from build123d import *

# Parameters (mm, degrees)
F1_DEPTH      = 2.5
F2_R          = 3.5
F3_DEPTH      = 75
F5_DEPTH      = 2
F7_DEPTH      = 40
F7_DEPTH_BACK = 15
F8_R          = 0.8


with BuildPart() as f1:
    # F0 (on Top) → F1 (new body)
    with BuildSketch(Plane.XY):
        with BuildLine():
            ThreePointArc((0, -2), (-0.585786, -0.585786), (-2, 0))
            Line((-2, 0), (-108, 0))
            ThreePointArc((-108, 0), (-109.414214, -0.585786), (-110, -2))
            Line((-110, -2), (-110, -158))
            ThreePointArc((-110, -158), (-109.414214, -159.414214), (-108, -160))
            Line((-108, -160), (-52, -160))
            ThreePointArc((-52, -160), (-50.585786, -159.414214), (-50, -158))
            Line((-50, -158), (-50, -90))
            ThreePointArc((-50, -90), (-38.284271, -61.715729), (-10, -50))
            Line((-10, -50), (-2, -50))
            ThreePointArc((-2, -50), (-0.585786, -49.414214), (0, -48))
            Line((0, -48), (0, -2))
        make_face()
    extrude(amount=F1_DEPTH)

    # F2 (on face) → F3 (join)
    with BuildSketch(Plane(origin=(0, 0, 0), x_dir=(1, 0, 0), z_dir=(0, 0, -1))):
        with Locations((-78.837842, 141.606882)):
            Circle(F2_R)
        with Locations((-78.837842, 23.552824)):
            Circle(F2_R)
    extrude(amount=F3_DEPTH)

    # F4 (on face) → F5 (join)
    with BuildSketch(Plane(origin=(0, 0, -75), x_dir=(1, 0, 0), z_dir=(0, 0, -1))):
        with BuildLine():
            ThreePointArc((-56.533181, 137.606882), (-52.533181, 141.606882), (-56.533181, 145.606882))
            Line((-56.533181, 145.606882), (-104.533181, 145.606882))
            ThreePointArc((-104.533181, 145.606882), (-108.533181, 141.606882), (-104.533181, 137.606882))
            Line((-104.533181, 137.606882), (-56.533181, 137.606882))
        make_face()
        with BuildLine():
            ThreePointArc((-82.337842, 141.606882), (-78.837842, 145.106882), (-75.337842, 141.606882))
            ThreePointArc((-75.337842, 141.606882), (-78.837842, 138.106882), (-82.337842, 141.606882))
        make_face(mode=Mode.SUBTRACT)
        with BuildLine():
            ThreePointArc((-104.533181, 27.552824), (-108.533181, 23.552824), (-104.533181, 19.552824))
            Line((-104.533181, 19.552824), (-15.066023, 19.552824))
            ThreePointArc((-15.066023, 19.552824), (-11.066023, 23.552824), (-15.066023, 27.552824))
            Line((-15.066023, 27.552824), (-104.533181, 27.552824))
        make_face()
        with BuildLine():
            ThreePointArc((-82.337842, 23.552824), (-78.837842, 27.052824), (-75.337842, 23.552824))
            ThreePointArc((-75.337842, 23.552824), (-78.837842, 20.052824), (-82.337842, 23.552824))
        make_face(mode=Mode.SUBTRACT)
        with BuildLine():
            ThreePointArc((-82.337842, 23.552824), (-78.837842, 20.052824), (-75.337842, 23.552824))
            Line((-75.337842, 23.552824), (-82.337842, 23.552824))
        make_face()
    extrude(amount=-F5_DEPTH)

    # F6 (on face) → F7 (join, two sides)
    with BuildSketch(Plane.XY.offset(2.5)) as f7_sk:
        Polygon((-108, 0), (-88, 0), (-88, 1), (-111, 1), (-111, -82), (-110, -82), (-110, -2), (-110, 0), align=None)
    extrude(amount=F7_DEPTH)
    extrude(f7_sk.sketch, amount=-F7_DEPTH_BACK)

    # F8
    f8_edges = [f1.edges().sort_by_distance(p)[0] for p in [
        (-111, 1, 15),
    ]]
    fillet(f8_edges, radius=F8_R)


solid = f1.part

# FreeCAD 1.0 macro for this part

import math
import FreeCAD as App
import Part
import Sketcher

V = App.Vector


def edges_at(feature, points):
    """Names of the edges that pass closest to the given points."""
    edges = feature.Shape.Edges
    near = lambda p: min(range(len(edges)), key=lambda i: edges[i].distToShape(Part.Vertex(*p))[0])
    return sorted({f"Edge{near(p) + 1}" for p in points})

doc = App.newDocument("Part")
body = doc.addObject("PartDesign::Body", "Body")

sketch1 = body.newObject("Sketcher::SketchObject", "Sketch")
sketch1.AttachmentSupport = (doc.getObject("XY_Plane"), [""])
sketch1.MapMode = "FlatFace"
sketch1.addGeometry([
    Part.ArcOfCircle(Part.Circle(V(-2, -2, 0), V(0, 0, 1), 2), math.radians(0), math.radians(90)),
    Part.LineSegment(V(-2, 0, 0), V(-108, 0, 0)),
    Part.ArcOfCircle(Part.Circle(V(-108, -2, 0), V(0, 0, 1), 2), math.radians(90), math.radians(180)),
    Part.LineSegment(V(-110, -2, 0), V(-110, -158, 0)),
    Part.ArcOfCircle(Part.Circle(V(-108, -158, 0), V(0, 0, 1), 2), math.radians(180), math.radians(270)),
    Part.LineSegment(V(-108, -160, 0), V(-52, -160, 0)),
    Part.ArcOfCircle(Part.Circle(V(-52, -158, 0), V(0, 0, 1), 2), math.radians(-90), math.radians(0)),
    Part.LineSegment(V(-50, -158, 0), V(-50, -90, 0)),
    Part.ArcOfCircle(Part.Circle(V(-10, -90, 0), V(0, 0, 1), 40), math.radians(90), math.radians(180)),
    Part.LineSegment(V(-10, -50, 0), V(-2, -50, 0)),
    Part.ArcOfCircle(Part.Circle(V(-2, -48, 0), V(0, 0, 1), 2), math.radians(-90), math.radians(0)),
    Part.LineSegment(V(0, -48, 0), V(0, -2, 0)),
], False)
sketch1.addConstraint([
    Sketcher.Constraint("Tangent", 0, 2, 1, 1),
    Sketcher.Constraint("Tangent", 1, 2, 2, 1),
    Sketcher.Constraint("Tangent", 2, 2, 3, 1),
    Sketcher.Constraint("Tangent", 3, 2, 4, 1),
    Sketcher.Constraint("Tangent", 4, 2, 5, 1),
    Sketcher.Constraint("Tangent", 5, 2, 6, 1),
    Sketcher.Constraint("Tangent", 6, 2, 7, 1),
    Sketcher.Constraint("Tangent", 7, 2, 8, 2),
    Sketcher.Constraint("Tangent", 8, 1, 9, 1),
    Sketcher.Constraint("Tangent", 9, 2, 10, 1),
    Sketcher.Constraint("Tangent", 10, 2, 11, 1),
    Sketcher.Constraint("Tangent", 11, 2, 0, 1),
    Sketcher.Constraint("Horizontal", 1),
    Sketcher.Constraint("Vertical", 3),
    Sketcher.Constraint("Horizontal", 5),
    Sketcher.Constraint("Vertical", 7),
    Sketcher.Constraint("Horizontal", 9),
    Sketcher.Constraint("Vertical", 11),
    Sketcher.Constraint("Equal", 0, 2),
    Sketcher.Constraint("Equal", 2, 4),
    Sketcher.Constraint("Equal", 4, 6),
    Sketcher.Constraint("Equal", 6, 10),
    Sketcher.Constraint("PointOnObject", 0, 2, -1),
    Sketcher.Constraint("PointOnObject", 10, 2, -2),
    Sketcher.Constraint("Radius", 0, 1.999999),
    Sketcher.Constraint("Radius", 8, 40.000001),
    Sketcher.Constraint("DistanceX", 1, 2, 1, 1, 106.0),
    Sketcher.Constraint("DistanceX", 5, 1, 5, 2, 56.0),
    Sketcher.Constraint("DistanceY", 3, 2, 3, 1, 156.0),
    Sketcher.Constraint("DistanceY", 7, 1, 7, 2, 68.0),
])
pad1 = body.newObject("PartDesign::Pad", "Pad")
pad1.Profile = sketch1
pad1.Length = 2.5

sketch2 = body.newObject("Sketcher::SketchObject", "Sketch001")
sketch2.AttachmentSupport = (doc.getObject("XY_Plane"), [""])
sketch2.MapMode = "FlatFace"
sketch2.addGeometry([
    Part.Circle(V(-78.8, -141.6, 0), V(0, 0, 1), 3.5),
    Part.Circle(V(-78.8, -23.6, 0), V(0, 0, 1), 3.5),
], False)
sketch2.addConstraint([
    Sketcher.Constraint("Equal", 0, 1),
    Sketcher.Constraint("Vertical", 0, 3, 1, 3),
    Sketcher.Constraint("Diameter", 0, 7.0),
    Sketcher.Constraint("DistanceX", 0, 3, -1, 1, 78.837842),
    Sketcher.Constraint("DistanceY", 0, 3, 1, 3, 118.054058),
    Sketcher.Constraint("DistanceY", 0, 3, -1, 1, 141.606882),
])
pad2 = body.newObject("PartDesign::Pad", "Pad001")
pad2.Profile = sketch2
pad2.Length = 75
pad2.Reversed = True

sketch3 = body.newObject("Sketcher::SketchObject", "Sketch002")
sketch3.AttachmentSupport = (doc.getObject("XY_Plane"), [""])
sketch3.MapMode = "FlatFace"
sketch3.AttachmentOffset = App.Placement(V(0, 0, -75), App.Rotation())
sketch3.addGeometry([
    Part.ArcOfCircle(Part.Circle(V(-56.5, -141.6, 0), V(0, 0, 1), 4), math.radians(-90), math.radians(90)),
    Part.LineSegment(V(-56.5, -145.6, 0), V(-104.5, -145.6, 0)),
    Part.ArcOfCircle(Part.Circle(V(-104.5, -141.6, 0), V(0, 0, 1), 4), math.radians(90), math.radians(270)),
    Part.LineSegment(V(-104.5, -137.6, 0), V(-56.5, -137.6, 0)),
    Part.Circle(V(-78.8, -141.6, 0), V(0, 0, 1), 3.5),
    Part.ArcOfCircle(Part.Circle(V(-104.5, -23.6, 0), V(0, 0, 1), 4), math.radians(90), math.radians(270)),
    Part.LineSegment(V(-104.5, -19.6, 0), V(-15.1, -19.6, 0)),
    Part.ArcOfCircle(Part.Circle(V(-15.1, -23.6, 0), V(0, 0, 1), 4), math.radians(-90), math.radians(90)),
    Part.LineSegment(V(-15.1, -27.6, 0), V(-104.5, -27.6, 0)),
    Part.ArcOfCircle(Part.Circle(V(-78.8, -23.6, 0), V(0, 0, 1), 3.5), math.radians(180), math.radians(360)),
    Part.LineSegment(V(-75.3, -23.6, 0), V(-82.3, -23.6, 0)),
], False)
sketch3.addConstraint([
    Sketcher.Constraint("Tangent", 0, 1, 1, 1),
    Sketcher.Constraint("Tangent", 1, 2, 2, 2),
    Sketcher.Constraint("Tangent", 2, 1, 3, 1),
    Sketcher.Constraint("Tangent", 3, 2, 0, 2),
    Sketcher.Constraint("Tangent", 5, 1, 6, 1),
    Sketcher.Constraint("Tangent", 6, 2, 7, 2),
    Sketcher.Constraint("Tangent", 7, 1, 8, 1),
    Sketcher.Constraint("Tangent", 8, 2, 5, 2),
    Sketcher.Constraint("Coincident", 9, 1, 10, 2),
    Sketcher.Constraint("Coincident", 10, 1, 9, 2),
    Sketcher.Constraint("Horizontal", 1),
    Sketcher.Constraint("Horizontal", 3),
    Sketcher.Constraint("Horizontal", 6),
    Sketcher.Constraint("Horizontal", 8),
    Sketcher.Constraint("Horizontal", 10),
    Sketcher.Constraint("Equal", 2, 5),
    Sketcher.Constraint("Equal", 4, 9),
    Sketcher.Constraint("Horizontal", 2, 3, 4, 3),
    Sketcher.Constraint("Horizontal", 7, 3, 9, 3),
    Sketcher.Constraint("Horizontal", 7, 3, 9, 1),
    Sketcher.Constraint("Vertical", 2, 3, 5, 3),
    Sketcher.Constraint("Vertical", 4, 3, 9, 3),
    Sketcher.Constraint("Diameter", 4, 7.0),
    Sketcher.Constraint("Radius", 0, 4.0),
    Sketcher.Constraint("DistanceX", 1, 2, 1, 1, 48.0),
    Sketcher.Constraint("DistanceX", 6, 1, 6, 2, 89.467158),
    Sketcher.Constraint("DistanceX", 0, 3, -1, 1, 56.533181),
    Sketcher.Constraint("DistanceX", 4, 3, -1, 1, 78.837842),
    Sketcher.Constraint("DistanceY", 2, 3, 5, 3, 118.054058),
    Sketcher.Constraint("DistanceY", 0, 3, -1, 1, 141.606882),
])
pad3 = body.newObject("PartDesign::Pad", "Pad002")
pad3.Profile = sketch3
pad3.Length = 2

sketch4 = body.newObject("Sketcher::SketchObject", "Sketch003")
sketch4.AttachmentSupport = (doc.getObject("XY_Plane"), [""])
sketch4.MapMode = "FlatFace"
sketch4.AttachmentOffset = App.Placement(V(0, 0, 2.5), App.Rotation())
sketch4.addGeometry([
    Part.LineSegment(V(-88, 0, 0), V(-88, 1, 0)),
    Part.LineSegment(V(-88, 1, 0), V(-111, 1, 0)),
    Part.LineSegment(V(-111, 1, 0), V(-111, -82, 0)),
    Part.LineSegment(V(-111, -82, 0), V(-110, -82, 0)),
    Part.LineSegment(V(-110, -82, 0), V(-110, 0, 0)),
    Part.LineSegment(V(-110, 0, 0), V(-88, 0, 0)),
], False)
sketch4.addConstraint([
    Sketcher.Constraint("Coincident", 0, 2, 1, 1),
    Sketcher.Constraint("Coincident", 1, 2, 2, 1),
    Sketcher.Constraint("Coincident", 2, 2, 3, 1),
    Sketcher.Constraint("Coincident", 3, 2, 4, 1),
    Sketcher.Constraint("Coincident", 4, 2, 5, 1),
    Sketcher.Constraint("Coincident", 5, 2, 0, 1),
    Sketcher.Constraint("Vertical", 0),
    Sketcher.Constraint("Horizontal", 1),
    Sketcher.Constraint("Vertical", 2),
    Sketcher.Constraint("Horizontal", 3),
    Sketcher.Constraint("Vertical", 4),
    Sketcher.Constraint("Horizontal", 5),
    Sketcher.Constraint("PointOnObject", 4, 2, -1),
    Sketcher.Constraint("Equal", 3, 0),
    Sketcher.Constraint("DistanceX", 1, 2, 1, 1, 23.0),
    Sketcher.Constraint("DistanceX", 3, 1, 3, 2, 1.0),
    Sketcher.Constraint("DistanceY", 2, 2, 2, 1, 83.0),
    Sketcher.Constraint("DistanceX", 0, 2, -1, 1, 88.0),
])
pad4 = body.newObject("PartDesign::Pad", "Pad003")
pad4.Profile = sketch4
pad4.Type = "TwoLengths"
pad4.Length = 40
pad4.Length2 = 15
doc.recompute()

fillet = body.newObject("PartDesign::Fillet", "Fillet")
fillet.Base = (pad4, edges_at(pad4, [(-111, 1, 15)]))
fillet.Radius = 0.8

doc.recompute()
